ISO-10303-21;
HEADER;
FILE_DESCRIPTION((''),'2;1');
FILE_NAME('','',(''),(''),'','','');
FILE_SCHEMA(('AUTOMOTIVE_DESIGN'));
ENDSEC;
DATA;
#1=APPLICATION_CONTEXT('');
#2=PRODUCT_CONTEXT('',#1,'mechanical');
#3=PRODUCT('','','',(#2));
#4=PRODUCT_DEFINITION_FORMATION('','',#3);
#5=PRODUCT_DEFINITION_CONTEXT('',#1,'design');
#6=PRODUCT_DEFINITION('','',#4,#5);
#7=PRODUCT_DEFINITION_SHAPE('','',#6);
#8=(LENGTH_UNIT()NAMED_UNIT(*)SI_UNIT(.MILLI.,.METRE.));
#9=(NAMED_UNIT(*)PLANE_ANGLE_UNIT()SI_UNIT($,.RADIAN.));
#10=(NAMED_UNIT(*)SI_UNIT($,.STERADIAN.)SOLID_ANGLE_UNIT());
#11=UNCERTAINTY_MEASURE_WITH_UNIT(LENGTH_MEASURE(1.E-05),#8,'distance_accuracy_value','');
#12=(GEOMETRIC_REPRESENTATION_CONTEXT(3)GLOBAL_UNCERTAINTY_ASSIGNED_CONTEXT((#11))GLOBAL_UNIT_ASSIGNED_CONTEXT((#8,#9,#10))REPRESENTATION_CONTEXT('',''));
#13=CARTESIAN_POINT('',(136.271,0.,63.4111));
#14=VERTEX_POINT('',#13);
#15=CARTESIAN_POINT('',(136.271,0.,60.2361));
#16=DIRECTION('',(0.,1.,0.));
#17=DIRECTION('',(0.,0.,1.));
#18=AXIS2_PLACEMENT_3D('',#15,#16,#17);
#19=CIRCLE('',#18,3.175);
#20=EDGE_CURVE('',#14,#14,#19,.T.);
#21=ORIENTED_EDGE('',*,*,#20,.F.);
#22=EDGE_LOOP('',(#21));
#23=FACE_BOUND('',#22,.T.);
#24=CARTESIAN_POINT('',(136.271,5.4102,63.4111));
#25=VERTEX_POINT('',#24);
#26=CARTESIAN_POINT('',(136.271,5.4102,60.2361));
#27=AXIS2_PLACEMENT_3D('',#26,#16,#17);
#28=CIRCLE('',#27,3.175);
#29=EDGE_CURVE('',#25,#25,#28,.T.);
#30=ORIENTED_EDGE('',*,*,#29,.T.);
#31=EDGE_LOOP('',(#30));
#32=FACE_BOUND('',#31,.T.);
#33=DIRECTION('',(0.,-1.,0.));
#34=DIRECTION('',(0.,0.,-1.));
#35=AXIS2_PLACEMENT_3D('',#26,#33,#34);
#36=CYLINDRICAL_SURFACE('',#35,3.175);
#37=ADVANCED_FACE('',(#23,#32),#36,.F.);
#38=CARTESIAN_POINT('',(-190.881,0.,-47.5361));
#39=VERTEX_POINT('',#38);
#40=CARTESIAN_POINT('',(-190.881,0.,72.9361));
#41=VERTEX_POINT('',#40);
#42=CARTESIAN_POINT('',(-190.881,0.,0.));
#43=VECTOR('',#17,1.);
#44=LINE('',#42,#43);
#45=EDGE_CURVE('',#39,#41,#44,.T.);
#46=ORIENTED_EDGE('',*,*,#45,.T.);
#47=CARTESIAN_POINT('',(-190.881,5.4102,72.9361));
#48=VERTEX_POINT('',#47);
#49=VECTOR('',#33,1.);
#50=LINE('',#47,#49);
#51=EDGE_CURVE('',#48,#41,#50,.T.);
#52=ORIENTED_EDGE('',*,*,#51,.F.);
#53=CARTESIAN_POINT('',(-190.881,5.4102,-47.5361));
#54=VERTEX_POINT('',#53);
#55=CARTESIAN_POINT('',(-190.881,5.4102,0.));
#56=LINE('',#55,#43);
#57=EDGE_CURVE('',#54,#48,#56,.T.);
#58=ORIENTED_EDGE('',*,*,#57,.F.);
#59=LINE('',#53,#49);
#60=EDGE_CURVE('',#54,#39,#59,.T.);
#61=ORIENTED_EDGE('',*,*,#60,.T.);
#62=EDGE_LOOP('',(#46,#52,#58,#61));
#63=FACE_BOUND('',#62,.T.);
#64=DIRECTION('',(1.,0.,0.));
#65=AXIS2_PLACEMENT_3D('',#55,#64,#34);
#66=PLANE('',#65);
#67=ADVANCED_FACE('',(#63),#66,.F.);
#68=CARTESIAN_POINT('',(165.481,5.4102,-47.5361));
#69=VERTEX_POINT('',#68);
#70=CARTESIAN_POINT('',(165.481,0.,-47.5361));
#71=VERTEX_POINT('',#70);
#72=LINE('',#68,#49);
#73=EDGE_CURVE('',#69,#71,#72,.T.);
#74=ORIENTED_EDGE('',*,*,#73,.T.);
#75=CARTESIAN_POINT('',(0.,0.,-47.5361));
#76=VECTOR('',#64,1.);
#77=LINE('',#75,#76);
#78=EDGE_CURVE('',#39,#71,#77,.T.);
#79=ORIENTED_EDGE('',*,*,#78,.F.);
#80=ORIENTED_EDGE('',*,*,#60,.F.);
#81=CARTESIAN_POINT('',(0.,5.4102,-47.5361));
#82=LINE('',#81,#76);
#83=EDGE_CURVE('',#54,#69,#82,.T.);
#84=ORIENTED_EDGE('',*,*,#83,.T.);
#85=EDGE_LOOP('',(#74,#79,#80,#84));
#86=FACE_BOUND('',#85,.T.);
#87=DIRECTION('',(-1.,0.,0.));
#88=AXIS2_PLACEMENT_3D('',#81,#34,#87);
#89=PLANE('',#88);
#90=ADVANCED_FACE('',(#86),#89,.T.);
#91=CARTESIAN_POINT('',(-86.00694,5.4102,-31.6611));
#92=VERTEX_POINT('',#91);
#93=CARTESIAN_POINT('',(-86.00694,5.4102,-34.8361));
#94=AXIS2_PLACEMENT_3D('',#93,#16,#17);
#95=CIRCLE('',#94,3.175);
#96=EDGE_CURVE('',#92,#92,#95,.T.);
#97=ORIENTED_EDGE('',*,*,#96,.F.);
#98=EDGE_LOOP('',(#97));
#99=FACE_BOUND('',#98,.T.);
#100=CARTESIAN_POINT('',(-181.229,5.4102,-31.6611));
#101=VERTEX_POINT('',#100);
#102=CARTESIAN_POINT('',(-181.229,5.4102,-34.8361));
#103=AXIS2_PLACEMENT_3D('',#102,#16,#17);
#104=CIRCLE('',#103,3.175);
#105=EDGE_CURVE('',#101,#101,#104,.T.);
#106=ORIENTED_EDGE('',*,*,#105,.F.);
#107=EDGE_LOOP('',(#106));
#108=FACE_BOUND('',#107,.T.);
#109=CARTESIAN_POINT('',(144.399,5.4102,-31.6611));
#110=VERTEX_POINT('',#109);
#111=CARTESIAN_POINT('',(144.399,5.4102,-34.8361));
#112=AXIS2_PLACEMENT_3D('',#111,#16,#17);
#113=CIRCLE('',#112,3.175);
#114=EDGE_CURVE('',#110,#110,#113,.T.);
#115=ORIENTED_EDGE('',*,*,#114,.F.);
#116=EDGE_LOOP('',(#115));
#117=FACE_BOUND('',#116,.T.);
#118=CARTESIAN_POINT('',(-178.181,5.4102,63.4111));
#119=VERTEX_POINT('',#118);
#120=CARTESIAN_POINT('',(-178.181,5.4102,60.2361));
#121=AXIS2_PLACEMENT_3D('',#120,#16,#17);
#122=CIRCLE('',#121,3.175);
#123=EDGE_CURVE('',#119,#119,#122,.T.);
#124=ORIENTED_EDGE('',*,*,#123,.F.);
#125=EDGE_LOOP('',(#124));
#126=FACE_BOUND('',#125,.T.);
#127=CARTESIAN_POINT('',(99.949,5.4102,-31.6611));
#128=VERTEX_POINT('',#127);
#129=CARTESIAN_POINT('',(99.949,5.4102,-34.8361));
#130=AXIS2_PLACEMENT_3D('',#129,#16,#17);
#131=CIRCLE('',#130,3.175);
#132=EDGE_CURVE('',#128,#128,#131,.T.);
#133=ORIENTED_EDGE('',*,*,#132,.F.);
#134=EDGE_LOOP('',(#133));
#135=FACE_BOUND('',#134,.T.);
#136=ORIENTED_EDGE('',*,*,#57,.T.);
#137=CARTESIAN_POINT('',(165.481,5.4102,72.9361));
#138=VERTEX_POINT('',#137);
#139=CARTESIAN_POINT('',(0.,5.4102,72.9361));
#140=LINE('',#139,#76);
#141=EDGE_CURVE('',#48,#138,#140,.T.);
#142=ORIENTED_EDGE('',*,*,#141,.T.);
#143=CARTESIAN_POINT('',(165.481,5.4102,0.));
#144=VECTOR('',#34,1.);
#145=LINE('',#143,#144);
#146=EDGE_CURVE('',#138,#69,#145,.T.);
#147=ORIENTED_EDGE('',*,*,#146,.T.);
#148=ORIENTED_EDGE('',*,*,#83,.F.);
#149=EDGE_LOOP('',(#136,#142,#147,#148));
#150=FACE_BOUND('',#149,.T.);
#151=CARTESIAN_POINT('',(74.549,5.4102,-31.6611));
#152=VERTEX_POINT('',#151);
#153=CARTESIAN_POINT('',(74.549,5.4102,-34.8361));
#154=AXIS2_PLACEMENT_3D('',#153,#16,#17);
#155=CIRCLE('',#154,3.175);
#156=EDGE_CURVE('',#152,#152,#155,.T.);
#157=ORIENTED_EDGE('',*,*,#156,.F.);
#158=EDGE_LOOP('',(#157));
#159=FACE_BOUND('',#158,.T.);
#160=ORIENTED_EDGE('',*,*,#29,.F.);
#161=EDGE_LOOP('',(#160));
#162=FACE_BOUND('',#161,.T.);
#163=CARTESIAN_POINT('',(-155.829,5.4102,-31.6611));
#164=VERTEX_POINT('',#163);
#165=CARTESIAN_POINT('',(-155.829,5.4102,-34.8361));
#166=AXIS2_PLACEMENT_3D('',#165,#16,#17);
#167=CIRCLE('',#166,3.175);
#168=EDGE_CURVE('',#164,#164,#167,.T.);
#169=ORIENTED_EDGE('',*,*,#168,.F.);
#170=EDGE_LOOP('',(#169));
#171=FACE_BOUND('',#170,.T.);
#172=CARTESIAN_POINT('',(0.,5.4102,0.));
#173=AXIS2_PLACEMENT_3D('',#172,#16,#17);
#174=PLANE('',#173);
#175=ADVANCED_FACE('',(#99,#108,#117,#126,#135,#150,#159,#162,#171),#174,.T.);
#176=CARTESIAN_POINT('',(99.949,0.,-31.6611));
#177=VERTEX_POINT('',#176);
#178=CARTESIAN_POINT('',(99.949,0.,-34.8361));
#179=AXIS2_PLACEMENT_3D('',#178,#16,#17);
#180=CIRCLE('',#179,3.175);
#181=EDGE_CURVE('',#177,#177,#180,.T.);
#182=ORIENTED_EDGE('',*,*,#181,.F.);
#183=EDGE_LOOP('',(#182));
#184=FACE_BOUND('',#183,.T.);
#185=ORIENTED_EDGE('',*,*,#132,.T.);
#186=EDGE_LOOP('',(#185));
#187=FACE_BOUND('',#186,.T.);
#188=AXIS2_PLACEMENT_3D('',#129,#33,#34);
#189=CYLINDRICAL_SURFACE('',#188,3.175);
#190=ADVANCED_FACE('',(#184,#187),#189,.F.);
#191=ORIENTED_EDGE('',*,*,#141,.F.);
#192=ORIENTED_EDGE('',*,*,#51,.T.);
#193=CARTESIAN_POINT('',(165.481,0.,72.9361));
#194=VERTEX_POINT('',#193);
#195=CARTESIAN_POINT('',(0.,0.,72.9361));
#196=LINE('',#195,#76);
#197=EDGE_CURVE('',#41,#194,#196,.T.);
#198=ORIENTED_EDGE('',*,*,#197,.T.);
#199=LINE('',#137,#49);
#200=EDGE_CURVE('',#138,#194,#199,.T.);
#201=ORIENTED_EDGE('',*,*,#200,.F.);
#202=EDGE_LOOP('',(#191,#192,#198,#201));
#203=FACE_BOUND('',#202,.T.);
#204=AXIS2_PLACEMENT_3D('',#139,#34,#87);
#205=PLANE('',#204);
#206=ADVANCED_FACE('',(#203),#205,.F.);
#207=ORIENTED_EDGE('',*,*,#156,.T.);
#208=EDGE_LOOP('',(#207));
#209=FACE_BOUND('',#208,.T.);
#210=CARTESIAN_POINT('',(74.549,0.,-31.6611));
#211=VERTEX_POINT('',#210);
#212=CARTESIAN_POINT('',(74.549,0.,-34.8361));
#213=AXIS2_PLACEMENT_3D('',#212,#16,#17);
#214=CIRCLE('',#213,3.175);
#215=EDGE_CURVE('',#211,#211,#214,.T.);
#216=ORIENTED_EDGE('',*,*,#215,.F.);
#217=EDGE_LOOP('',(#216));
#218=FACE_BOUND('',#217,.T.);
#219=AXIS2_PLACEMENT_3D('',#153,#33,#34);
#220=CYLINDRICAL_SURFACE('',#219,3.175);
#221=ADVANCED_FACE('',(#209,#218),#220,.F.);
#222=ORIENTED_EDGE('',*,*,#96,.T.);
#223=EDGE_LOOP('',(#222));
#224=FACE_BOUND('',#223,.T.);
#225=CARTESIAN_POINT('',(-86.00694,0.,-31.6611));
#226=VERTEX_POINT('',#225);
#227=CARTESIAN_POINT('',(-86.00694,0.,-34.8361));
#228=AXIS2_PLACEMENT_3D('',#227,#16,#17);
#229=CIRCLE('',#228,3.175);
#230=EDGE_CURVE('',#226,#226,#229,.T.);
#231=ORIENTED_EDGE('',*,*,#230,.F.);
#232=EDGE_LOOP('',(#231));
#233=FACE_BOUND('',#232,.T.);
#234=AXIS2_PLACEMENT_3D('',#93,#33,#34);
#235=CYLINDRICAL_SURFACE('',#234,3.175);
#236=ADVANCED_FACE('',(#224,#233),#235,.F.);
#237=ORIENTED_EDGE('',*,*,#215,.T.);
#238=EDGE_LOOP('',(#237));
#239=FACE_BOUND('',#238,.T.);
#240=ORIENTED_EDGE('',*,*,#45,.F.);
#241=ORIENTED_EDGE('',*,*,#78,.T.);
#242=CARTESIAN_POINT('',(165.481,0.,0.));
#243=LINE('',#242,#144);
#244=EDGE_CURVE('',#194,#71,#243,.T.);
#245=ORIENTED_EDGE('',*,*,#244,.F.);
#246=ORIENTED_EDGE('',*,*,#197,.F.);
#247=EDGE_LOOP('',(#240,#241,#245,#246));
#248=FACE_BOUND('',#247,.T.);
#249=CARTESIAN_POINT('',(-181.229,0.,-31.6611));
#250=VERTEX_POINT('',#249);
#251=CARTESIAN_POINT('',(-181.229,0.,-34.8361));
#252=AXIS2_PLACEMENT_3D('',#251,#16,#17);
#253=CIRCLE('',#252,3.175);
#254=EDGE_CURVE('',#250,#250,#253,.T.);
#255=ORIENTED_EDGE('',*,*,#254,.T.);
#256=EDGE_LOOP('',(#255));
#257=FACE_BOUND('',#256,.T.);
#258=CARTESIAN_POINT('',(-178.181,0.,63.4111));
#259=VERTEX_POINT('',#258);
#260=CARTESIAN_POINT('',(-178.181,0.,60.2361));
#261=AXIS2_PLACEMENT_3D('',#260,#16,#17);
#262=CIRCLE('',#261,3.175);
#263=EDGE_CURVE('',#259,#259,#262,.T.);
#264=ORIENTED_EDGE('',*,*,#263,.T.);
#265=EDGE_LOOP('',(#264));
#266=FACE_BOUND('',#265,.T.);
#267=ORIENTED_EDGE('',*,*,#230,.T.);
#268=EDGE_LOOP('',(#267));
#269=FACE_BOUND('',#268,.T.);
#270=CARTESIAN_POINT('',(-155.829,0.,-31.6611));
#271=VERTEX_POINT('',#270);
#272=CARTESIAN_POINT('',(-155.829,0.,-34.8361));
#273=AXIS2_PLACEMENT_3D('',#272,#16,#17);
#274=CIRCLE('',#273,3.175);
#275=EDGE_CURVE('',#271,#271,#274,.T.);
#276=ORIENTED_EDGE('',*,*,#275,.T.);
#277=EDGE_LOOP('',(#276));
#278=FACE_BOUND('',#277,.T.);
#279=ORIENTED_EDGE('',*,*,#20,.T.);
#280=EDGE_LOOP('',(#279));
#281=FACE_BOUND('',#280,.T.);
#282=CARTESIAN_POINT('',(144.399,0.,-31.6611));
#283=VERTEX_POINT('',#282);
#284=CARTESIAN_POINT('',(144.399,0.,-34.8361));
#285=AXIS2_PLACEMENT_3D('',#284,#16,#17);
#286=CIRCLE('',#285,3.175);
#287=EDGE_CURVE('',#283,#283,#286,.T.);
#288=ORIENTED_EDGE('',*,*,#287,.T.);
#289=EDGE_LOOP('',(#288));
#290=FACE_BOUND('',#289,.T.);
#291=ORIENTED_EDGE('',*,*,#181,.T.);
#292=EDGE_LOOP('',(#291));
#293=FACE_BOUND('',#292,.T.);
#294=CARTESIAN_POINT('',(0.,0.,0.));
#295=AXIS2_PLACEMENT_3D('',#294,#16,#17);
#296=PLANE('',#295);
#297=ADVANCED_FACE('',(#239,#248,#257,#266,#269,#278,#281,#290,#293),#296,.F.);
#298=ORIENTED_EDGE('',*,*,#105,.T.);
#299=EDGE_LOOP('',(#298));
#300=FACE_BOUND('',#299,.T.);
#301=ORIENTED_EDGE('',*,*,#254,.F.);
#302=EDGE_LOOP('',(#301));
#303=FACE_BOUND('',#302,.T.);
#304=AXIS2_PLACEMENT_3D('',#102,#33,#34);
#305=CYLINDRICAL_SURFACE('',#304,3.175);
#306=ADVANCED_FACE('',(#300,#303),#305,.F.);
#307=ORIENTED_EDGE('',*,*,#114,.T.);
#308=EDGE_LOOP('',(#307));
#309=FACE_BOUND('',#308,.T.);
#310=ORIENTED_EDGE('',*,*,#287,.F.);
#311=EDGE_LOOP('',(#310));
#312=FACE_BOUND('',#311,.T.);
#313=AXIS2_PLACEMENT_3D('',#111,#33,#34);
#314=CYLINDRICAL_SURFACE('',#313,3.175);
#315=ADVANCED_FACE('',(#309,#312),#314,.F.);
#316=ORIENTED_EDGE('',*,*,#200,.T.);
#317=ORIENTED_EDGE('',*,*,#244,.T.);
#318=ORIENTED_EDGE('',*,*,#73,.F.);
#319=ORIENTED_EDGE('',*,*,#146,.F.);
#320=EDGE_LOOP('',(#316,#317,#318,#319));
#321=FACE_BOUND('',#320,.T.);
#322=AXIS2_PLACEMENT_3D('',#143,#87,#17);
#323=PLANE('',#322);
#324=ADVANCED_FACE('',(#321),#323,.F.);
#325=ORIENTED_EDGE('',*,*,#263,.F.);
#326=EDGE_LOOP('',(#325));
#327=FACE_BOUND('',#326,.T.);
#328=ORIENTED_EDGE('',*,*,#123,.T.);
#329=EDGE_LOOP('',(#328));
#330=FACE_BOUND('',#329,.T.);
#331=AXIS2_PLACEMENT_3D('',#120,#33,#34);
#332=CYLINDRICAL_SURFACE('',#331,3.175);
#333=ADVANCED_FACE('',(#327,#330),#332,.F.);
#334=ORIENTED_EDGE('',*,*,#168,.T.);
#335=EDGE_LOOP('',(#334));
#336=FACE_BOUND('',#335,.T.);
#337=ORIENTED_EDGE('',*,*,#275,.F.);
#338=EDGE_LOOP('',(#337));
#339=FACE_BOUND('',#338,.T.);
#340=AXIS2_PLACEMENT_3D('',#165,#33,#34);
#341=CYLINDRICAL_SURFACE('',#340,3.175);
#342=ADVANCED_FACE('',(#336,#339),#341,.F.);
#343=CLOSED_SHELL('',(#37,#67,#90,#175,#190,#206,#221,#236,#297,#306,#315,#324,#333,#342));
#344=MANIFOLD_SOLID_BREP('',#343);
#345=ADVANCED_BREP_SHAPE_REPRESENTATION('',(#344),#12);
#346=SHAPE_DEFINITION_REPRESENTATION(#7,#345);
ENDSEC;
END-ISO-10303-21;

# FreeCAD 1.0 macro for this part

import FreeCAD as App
import Part
import Sketcher
from FreeCAD import Vector
Q = App.Units.Quantity

doc = App.newDocument("Part")
body = doc.addObject("PartDesign::Body", "Body")

# Sketch on XZ plane
sketch1 = body.newObject("Sketcher::SketchObject", "Sketch")
sketch1.AttachmentSupport = (doc.getObject("XZ_Plane"), [""])
sketch1.MapMode = "FlatFace"
sketch1.addGeometry([
    Part.LineSegment(Vector(165.5, -47.5, 0), Vector(-190.9, -47.5, 0)),  # 0
    Part.LineSegment(Vector(-190.9, -47.5, 0), Vector(-190.9, 72.9, 0)),  # 1
    Part.LineSegment(Vector(-190.9, 72.9, 0), Vector(165.5, 72.9, 0)),  # 2
    Part.LineSegment(Vector(165.5, 72.9, 0), Vector(165.5, -47.5, 0)),  # 3
    Part.Circle(Vector(-155.8, -34.8, 0), Vector(0, 0, 1), 3.2),  # 4
    Part.Circle(Vector(-86, -34.8, 0), Vector(0, 0, 1), 3.2),  # 5
    Part.Circle(Vector(74.5, -34.8, 0), Vector(0, 0, 1), 3.2),  # 6
    Part.Circle(Vector(99.9, -34.8, 0), Vector(0, 0, 1), 3.2),  # 7
    Part.Circle(Vector(144.4, -34.8, 0), Vector(0, 0, 1), 3.2),  # 8
    Part.Circle(Vector(-181.2, -34.8, 0), Vector(0, 0, 1), 3.2),  # 9
    Part.Circle(Vector(136.3, 60.2, 0), Vector(0, 0, 1), 3.2),  # 10
    Part.Circle(Vector(-178.2, 60.2, 0), Vector(0, 0, 1), 3.2),  # 11
], False)
sketch1.addConstraint([
    Sketcher.Constraint("Coincident", 0, 2, 1, 1),
    Sketcher.Constraint("Coincident", 1, 2, 2, 1),
    Sketcher.Constraint("Coincident", 2, 2, 3, 1),
    Sketcher.Constraint("Coincident", 3, 2, 0, 1),
    Sketcher.Constraint("Horizontal", 0),
    Sketcher.Constraint("Vertical", 1),
    Sketcher.Constraint("Horizontal", 2),
    Sketcher.Constraint("Vertical", 3),
    Sketcher.Constraint("Equal", 4, 5),
    Sketcher.Constraint("Equal", 5, 6),
    Sketcher.Constraint("Equal", 6, 7),
    Sketcher.Constraint("Equal", 7, 8),
    Sketcher.Constraint("Equal", 8, 9),
    Sketcher.Constraint("Equal", 9, 10),
    Sketcher.Constraint("Equal", 10, 11),
    Sketcher.Constraint("Horizontal", 4, 3, 5, 3),
    Sketcher.Constraint("Horizontal", 5, 3, 6, 3),
    Sketcher.Constraint("Horizontal", 6, 3, 7, 3),
    Sketcher.Constraint("Horizontal", 7, 3, 8, 3),
    Sketcher.Constraint("Horizontal", 8, 3, 9, 3),
    Sketcher.Constraint("Horizontal", 10, 3, 11, 3),
    Sketcher.Constraint("Diameter", 4, Q("0.25 in")),
    Sketcher.Constraint("DistanceX", 6, 3, 7, 3, Q("1 in")),
    Sketcher.Constraint("DistanceX", 9, 3, 4, 3, Q("1 in")),
    Sketcher.Constraint("DistanceX", 0, 2, 0, 1, Q("14.03 in")),
    Sketcher.Constraint("DistanceX", 4, 3, 10, 3, Q("11.5 in")),
    Sketcher.Constraint("DistanceY", 0, 2, 9, 3, Q("0.5 in")),
    Sketcher.Constraint("DistanceX", 0, 2, 11, 3, Q("0.5 in")),
    Sketcher.Constraint("DistanceY", 11, 3, 1, 2, Q("0.5 in")),
    Sketcher.Constraint("DistanceY", 1, 1, 1, 2, Q("4.743 in")),
    Sketcher.Constraint("DistanceX", 4, 3, 6, 3, Q("9.07 in")),
    Sketcher.Constraint("DistanceX", 7, 3, 8, 3, Q("1.75 in")),
    Sketcher.Constraint("DistanceX", 9, 3, 11, 3, Q("0.12 in")),
    Sketcher.Constraint("DistanceX", 4, 3, -1, 1, Q("6.135 in")),
    Sketcher.Constraint("DistanceY", 4, 3, -1, 1, Q("1.3715 in")),
    Sketcher.Constraint("DistanceX", 5, 3, -1, 1, Q("3.3861 in")),
])
pad1 = body.newObject("PartDesign::Pad", "Pad")
pad1.Profile = sketch1
pad1.Length = Q("0.213 in")
pad1.Reversed = True

doc.recompute()
